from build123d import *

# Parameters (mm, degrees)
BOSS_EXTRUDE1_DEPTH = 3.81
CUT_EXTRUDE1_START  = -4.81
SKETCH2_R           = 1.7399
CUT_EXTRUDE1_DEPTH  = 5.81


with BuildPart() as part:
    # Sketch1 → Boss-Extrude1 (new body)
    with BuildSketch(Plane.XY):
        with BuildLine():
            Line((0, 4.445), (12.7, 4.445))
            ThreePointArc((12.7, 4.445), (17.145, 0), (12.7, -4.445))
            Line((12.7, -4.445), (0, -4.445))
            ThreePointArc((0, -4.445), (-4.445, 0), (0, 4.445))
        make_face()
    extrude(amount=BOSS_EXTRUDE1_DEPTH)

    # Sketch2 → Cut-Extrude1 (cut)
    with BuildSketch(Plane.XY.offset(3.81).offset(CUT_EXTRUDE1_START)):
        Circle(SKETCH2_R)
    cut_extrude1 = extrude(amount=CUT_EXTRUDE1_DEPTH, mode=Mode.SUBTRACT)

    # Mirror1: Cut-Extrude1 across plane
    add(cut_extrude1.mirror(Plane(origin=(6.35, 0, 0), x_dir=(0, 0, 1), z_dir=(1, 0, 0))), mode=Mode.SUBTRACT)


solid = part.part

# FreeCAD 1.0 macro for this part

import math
import FreeCAD as App
import Part
import Sketcher
from FreeCAD import Vector
Q = App.Units.Quantity

doc = App.newDocument("Part")
params = doc.addObject("Spreadsheet::Sheet", "Params")
for row, (alias, value) in enumerate([
    ("sketch1_width", "0.5 in"),
    ("sketch1_radius", "0.175 in"),
    ("pad1_length", "0.15 in"),
    ("sketch2_diameter", "0.137 in"),
    ("pocket1_length", "5.81 mm"),
], start=1):
    params.set(f"A{row}", alias)
    params.set(f"B{row}", "=" + value)
    params.setAlias(f"B{row}", alias)

body = doc.addObject("PartDesign::Body", "Body")

# Sketch on XY plane
sketch1 = body.newObject("Sketcher::SketchObject", "Sketch")
sketch1.AttachmentSupport = (doc.getObject("XY_Plane"), [""])
sketch1.MapMode = "FlatFace"
sketch1.addGeometry([
    Part.LineSegment(Vector(12.7, 4.445, 0), Vector(0, 4.445, 0)),
    Part.ArcOfCircle(Part.Circle(Vector(0, 0, 0), Vector(0, 0, 1), 4.445), math.radians(90), math.radians(270)),
    Part.LineSegment(Vector(0, -4.445, 0), Vector(12.7, -4.445, 0)),
    Part.ArcOfCircle(Part.Circle(Vector(12.7, 0, 0), Vector(0, 0, 1), 4.445), math.radians(-90), math.radians(90)),
], False)
sketch1.addConstraint([
    Sketcher.Constraint("Tangent", 0, 2, 1, 1),
    Sketcher.Constraint("Tangent", 1, 2, 2, 1),
    Sketcher.Constraint("Tangent", 2, 2, 3, 1),
    Sketcher.Constraint("Tangent", 3, 2, 0, 1),
    Sketcher.Constraint("Horizontal", 0),
    Sketcher.Constraint("Horizontal", 2),
    Sketcher.Constraint("Coincident", 1, 3, -1, 1),
    Sketcher.Constraint("DistanceX", 0, 2, 0, 1, Q("0.5 in")),
    Sketcher.Constraint("Radius", 1, Q("0.175 in")),
])
sketch1.setExpression("Constraints[7]", "Params.sketch1_width")
sketch1.setExpression("Constraints[8]", "Params.sketch1_radius")
pad1 = body.newObject("PartDesign::Pad", "Pad")
pad1.Profile = sketch1
pad1.setExpression("Length", "Params.pad1_length")

# Sketch on XY plane
sketch2 = body.newObject("Sketcher::SketchObject", "Sketch001")
sketch2.AttachmentSupport = (doc.getObject("XY_Plane"), [""])
sketch2.MapMode = "FlatFace"
sketch2.AttachmentOffset = App.Placement(Vector(0, 0, -1), App.Rotation())
sketch2.addGeometry(Part.Circle(Vector(0, 0, 0), Vector(0, 0, 1), 1.7399), False)
sketch2.addConstraint([
    Sketcher.Constraint("Coincident", 0, 3, -1, 1),
    Sketcher.Constraint("Diameter", 0, Q("0.137 in")),
])
sketch2.setExpression("Constraints[1]", "Params.sketch2_diameter")
pocket1 = body.newObject("PartDesign::Pocket", "Pocket")
pocket1.Profile = sketch2
pocket1.setExpression("Length", "Params.pocket1_length")
pocket1.Reversed = True
doc.recompute()

datumplane = body.newObject("PartDesign::Plane", "DatumPlane")
datumplane.AttachmentSupport = (doc.getObject("YZ_Plane"), [""])
datumplane.MapMode = "FlatFace"
datumplane.AttachmentOffset = App.Placement(Vector(0, 0, 0.25 * 25.4), App.Rotation())
mirrored = body.newObject("PartDesign::Mirrored", "Mirrored")
mirrored.Originals = [pocket1]
mirrored.MirrorPlane = (datumplane, [""])
body.Tip = mirrored

doc.recompute()
